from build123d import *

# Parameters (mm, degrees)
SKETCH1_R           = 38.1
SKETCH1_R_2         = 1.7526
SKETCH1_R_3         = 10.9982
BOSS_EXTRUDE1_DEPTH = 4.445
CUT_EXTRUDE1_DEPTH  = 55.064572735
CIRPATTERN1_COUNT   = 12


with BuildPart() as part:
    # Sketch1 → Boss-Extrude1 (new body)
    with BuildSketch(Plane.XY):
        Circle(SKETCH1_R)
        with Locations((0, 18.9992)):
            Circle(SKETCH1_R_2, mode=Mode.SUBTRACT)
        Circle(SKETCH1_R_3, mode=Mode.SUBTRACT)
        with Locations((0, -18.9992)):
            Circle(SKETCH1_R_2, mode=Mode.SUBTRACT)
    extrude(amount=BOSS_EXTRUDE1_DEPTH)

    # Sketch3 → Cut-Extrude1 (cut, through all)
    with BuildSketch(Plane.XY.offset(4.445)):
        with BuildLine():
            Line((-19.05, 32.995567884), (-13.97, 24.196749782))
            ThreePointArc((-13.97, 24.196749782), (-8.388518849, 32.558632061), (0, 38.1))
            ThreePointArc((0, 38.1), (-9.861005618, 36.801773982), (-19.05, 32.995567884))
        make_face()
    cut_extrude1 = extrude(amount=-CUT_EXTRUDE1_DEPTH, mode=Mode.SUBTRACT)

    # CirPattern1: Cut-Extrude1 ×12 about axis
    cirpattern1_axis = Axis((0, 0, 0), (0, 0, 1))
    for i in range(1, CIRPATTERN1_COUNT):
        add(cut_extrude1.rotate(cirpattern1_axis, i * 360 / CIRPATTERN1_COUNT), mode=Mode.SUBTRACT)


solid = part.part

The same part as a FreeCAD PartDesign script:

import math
import FreeCAD as App
import Part
import Sketcher

V = App.Vector
Q = App.Units.Quantity

doc = App.newDocument("Part")
params = doc.addObject("Spreadsheet::Sheet", "Params")
for row, (alias, value) in enumerate([
    ("sketch1_diameter", "3 in"),
    ("sketch1_diameter2", "0.138 in"),
    ("sketch1_diameter3", "0.866 in"),
    ("pad1_length", "0.175 in"),
    ("sketch2_radius", "1 in"),
    ("sketch2_radius2", "1.5 in"),
    ("sketch2_length", "0.4 in"),
], start=1):
    params.set(f"A{row}", alias)
    params.set(f"B{row}", "=" + value)
    params.setAlias(f"B{row}", alias)

body = doc.addObject("PartDesign::Body", "Body")

# Sketch on XY plane
sketch1 = doc.addObject("Sketcher::SketchObject", "Sketch")
body.addObject(sketch1)
sketch1.AttachmentSupport = (doc.XY_Plane, [""])
sketch1.MapMode = "FlatFace"
sketch1.addGeometry(Part.Circle(V(0, 0, 0), V(0, 0, 1), 38.1), False)
sketch1.addGeometry(Part.Circle(V(0, -19, 0), V(0, 0, 1), 1.8), False)
sketch1.addGeometry(Part.Circle(V(0, 0, 0), V(0, 0, 1), 11), False)
sketch1.addGeometry(Part.Circle(V(0, 19, 0), V(0, 0, 1), 1.8), False)
sketch1.addConstraint(Sketcher.Constraint("Coincident", 0, 3, -1, 1))
sketch1.addConstraint(Sketcher.Constraint("Coincident", 2, 3, -1, 1))
sketch1.addConstraint(Sketcher.Constraint("Equal", 1, 3))
sketch1.addConstraint(Sketcher.Constraint("Symmetric", 1, 3, 3, 3, -1, 1))
sketch1.addConstraint(Sketcher.Constraint("PointOnObject", 1, 3, -2))
sketch1.addConstraint(Sketcher.Constraint("Diameter", 0, Q("3 in")))
sketch1.addConstraint(Sketcher.Constraint("Diameter", 1, Q("0.138 in")))
sketch1.addConstraint(Sketcher.Constraint("Diameter", 2, Q("0.866 in")))
sketch1.addConstraint(Sketcher.Constraint("DistanceY", 1, 3, -1, 1, Q("0.748 in")))
sketch1.setExpression("Constraints[5]", "Params.sketch1_diameter")
sketch1.setExpression("Constraints[6]", "Params.sketch1_diameter2")
sketch1.setExpression("Constraints[7]", "Params.sketch1_diameter3")
pad1 = doc.addObject("PartDesign::Pad", "Pad")
body.addObject(pad1)
pad1.Profile = sketch1
pad1.setExpression("Length", "Params.pad1_length")

# Sketch on XY plane
sketch2 = doc.addObject("Sketcher::SketchObject", "Sketch001")
body.addObject(sketch2)
sketch2.AttachmentSupport = (doc.XY_Plane, [""])
sketch2.MapMode = "FlatFace"
sketch2.AttachmentOffset = App.Placement(V(0, 0, 0.175 * 25.4), App.Rotation())
sketch2.addGeometry(Part.LineSegment(V(-19, 33, 0), V(-14, 24, 0)), False)
sketch2.addGeometry(Part.ArcOfCircle(Part.Circle(V(10, 15, 0), V(0, 0, 1), 25), math.radians(112), math.radians(158)), False)
sketch2.addGeometry(Part.ArcOfCircle(Part.Circle(V(0, 0, 0), V(0, 0, 1), 38), math.radians(90), math.radians(120)), False)
sketch2.addConstraint(Sketcher.Constraint("Coincident", 0, 2, 1, 2))
sketch2.addConstraint(Sketcher.Constraint("Coincident", 1, 1, 2, 1))
sketch2.addConstraint(Sketcher.Constraint("Coincident", 2, 2, 0, 1))
sketch2.addConstraint(Sketcher.Constraint("Coincident", 2, 3, -1, 1))
sketch2.addConstraint(Sketcher.Constraint("PointOnObject", 1, 1, -2))
sketch2.addConstraint(Sketcher.Constraint("Radius", 1, Q("1 in")))
sketch2.addConstraint(Sketcher.Constraint("Radius", 2, Q("1.5 in")))
sketch2.addConstraint(Sketcher.Constraint("Angle", 0, Q("-60 deg")))
sketch2.addConstraint(Sketcher.Constraint("Distance", 0, Q("0.4 in")))
sketch2.addConstraint(Sketcher.Constraint("DistanceX", 0, 2, -1, 1, Q("0.55 in")))
sketch2.setExpression("Constraints[5]", "Params.sketch2_radius")
sketch2.setExpression("Constraints[6]", "Params.sketch2_radius2")
sketch2.setExpression("Constraints[8]", "Params.sketch2_length")
pocket1 = doc.addObject("PartDesign::Pocket", "Pocket")
body.addObject(pocket1)
pocket1.Profile = sketch2
pocket1.Type = "ThroughAll"
doc.recompute()

polarpattern = doc.addObject("PartDesign::PolarPattern", "PolarPattern")
body.addObject(polarpattern)
polarpattern.Originals = [pocket1]
polarpattern.Axis = (doc.Z_Axis, [""])
polarpattern.Angle = 360
polarpattern.Occurrences = 12
body.Tip = polarpattern

doc.recompute()
